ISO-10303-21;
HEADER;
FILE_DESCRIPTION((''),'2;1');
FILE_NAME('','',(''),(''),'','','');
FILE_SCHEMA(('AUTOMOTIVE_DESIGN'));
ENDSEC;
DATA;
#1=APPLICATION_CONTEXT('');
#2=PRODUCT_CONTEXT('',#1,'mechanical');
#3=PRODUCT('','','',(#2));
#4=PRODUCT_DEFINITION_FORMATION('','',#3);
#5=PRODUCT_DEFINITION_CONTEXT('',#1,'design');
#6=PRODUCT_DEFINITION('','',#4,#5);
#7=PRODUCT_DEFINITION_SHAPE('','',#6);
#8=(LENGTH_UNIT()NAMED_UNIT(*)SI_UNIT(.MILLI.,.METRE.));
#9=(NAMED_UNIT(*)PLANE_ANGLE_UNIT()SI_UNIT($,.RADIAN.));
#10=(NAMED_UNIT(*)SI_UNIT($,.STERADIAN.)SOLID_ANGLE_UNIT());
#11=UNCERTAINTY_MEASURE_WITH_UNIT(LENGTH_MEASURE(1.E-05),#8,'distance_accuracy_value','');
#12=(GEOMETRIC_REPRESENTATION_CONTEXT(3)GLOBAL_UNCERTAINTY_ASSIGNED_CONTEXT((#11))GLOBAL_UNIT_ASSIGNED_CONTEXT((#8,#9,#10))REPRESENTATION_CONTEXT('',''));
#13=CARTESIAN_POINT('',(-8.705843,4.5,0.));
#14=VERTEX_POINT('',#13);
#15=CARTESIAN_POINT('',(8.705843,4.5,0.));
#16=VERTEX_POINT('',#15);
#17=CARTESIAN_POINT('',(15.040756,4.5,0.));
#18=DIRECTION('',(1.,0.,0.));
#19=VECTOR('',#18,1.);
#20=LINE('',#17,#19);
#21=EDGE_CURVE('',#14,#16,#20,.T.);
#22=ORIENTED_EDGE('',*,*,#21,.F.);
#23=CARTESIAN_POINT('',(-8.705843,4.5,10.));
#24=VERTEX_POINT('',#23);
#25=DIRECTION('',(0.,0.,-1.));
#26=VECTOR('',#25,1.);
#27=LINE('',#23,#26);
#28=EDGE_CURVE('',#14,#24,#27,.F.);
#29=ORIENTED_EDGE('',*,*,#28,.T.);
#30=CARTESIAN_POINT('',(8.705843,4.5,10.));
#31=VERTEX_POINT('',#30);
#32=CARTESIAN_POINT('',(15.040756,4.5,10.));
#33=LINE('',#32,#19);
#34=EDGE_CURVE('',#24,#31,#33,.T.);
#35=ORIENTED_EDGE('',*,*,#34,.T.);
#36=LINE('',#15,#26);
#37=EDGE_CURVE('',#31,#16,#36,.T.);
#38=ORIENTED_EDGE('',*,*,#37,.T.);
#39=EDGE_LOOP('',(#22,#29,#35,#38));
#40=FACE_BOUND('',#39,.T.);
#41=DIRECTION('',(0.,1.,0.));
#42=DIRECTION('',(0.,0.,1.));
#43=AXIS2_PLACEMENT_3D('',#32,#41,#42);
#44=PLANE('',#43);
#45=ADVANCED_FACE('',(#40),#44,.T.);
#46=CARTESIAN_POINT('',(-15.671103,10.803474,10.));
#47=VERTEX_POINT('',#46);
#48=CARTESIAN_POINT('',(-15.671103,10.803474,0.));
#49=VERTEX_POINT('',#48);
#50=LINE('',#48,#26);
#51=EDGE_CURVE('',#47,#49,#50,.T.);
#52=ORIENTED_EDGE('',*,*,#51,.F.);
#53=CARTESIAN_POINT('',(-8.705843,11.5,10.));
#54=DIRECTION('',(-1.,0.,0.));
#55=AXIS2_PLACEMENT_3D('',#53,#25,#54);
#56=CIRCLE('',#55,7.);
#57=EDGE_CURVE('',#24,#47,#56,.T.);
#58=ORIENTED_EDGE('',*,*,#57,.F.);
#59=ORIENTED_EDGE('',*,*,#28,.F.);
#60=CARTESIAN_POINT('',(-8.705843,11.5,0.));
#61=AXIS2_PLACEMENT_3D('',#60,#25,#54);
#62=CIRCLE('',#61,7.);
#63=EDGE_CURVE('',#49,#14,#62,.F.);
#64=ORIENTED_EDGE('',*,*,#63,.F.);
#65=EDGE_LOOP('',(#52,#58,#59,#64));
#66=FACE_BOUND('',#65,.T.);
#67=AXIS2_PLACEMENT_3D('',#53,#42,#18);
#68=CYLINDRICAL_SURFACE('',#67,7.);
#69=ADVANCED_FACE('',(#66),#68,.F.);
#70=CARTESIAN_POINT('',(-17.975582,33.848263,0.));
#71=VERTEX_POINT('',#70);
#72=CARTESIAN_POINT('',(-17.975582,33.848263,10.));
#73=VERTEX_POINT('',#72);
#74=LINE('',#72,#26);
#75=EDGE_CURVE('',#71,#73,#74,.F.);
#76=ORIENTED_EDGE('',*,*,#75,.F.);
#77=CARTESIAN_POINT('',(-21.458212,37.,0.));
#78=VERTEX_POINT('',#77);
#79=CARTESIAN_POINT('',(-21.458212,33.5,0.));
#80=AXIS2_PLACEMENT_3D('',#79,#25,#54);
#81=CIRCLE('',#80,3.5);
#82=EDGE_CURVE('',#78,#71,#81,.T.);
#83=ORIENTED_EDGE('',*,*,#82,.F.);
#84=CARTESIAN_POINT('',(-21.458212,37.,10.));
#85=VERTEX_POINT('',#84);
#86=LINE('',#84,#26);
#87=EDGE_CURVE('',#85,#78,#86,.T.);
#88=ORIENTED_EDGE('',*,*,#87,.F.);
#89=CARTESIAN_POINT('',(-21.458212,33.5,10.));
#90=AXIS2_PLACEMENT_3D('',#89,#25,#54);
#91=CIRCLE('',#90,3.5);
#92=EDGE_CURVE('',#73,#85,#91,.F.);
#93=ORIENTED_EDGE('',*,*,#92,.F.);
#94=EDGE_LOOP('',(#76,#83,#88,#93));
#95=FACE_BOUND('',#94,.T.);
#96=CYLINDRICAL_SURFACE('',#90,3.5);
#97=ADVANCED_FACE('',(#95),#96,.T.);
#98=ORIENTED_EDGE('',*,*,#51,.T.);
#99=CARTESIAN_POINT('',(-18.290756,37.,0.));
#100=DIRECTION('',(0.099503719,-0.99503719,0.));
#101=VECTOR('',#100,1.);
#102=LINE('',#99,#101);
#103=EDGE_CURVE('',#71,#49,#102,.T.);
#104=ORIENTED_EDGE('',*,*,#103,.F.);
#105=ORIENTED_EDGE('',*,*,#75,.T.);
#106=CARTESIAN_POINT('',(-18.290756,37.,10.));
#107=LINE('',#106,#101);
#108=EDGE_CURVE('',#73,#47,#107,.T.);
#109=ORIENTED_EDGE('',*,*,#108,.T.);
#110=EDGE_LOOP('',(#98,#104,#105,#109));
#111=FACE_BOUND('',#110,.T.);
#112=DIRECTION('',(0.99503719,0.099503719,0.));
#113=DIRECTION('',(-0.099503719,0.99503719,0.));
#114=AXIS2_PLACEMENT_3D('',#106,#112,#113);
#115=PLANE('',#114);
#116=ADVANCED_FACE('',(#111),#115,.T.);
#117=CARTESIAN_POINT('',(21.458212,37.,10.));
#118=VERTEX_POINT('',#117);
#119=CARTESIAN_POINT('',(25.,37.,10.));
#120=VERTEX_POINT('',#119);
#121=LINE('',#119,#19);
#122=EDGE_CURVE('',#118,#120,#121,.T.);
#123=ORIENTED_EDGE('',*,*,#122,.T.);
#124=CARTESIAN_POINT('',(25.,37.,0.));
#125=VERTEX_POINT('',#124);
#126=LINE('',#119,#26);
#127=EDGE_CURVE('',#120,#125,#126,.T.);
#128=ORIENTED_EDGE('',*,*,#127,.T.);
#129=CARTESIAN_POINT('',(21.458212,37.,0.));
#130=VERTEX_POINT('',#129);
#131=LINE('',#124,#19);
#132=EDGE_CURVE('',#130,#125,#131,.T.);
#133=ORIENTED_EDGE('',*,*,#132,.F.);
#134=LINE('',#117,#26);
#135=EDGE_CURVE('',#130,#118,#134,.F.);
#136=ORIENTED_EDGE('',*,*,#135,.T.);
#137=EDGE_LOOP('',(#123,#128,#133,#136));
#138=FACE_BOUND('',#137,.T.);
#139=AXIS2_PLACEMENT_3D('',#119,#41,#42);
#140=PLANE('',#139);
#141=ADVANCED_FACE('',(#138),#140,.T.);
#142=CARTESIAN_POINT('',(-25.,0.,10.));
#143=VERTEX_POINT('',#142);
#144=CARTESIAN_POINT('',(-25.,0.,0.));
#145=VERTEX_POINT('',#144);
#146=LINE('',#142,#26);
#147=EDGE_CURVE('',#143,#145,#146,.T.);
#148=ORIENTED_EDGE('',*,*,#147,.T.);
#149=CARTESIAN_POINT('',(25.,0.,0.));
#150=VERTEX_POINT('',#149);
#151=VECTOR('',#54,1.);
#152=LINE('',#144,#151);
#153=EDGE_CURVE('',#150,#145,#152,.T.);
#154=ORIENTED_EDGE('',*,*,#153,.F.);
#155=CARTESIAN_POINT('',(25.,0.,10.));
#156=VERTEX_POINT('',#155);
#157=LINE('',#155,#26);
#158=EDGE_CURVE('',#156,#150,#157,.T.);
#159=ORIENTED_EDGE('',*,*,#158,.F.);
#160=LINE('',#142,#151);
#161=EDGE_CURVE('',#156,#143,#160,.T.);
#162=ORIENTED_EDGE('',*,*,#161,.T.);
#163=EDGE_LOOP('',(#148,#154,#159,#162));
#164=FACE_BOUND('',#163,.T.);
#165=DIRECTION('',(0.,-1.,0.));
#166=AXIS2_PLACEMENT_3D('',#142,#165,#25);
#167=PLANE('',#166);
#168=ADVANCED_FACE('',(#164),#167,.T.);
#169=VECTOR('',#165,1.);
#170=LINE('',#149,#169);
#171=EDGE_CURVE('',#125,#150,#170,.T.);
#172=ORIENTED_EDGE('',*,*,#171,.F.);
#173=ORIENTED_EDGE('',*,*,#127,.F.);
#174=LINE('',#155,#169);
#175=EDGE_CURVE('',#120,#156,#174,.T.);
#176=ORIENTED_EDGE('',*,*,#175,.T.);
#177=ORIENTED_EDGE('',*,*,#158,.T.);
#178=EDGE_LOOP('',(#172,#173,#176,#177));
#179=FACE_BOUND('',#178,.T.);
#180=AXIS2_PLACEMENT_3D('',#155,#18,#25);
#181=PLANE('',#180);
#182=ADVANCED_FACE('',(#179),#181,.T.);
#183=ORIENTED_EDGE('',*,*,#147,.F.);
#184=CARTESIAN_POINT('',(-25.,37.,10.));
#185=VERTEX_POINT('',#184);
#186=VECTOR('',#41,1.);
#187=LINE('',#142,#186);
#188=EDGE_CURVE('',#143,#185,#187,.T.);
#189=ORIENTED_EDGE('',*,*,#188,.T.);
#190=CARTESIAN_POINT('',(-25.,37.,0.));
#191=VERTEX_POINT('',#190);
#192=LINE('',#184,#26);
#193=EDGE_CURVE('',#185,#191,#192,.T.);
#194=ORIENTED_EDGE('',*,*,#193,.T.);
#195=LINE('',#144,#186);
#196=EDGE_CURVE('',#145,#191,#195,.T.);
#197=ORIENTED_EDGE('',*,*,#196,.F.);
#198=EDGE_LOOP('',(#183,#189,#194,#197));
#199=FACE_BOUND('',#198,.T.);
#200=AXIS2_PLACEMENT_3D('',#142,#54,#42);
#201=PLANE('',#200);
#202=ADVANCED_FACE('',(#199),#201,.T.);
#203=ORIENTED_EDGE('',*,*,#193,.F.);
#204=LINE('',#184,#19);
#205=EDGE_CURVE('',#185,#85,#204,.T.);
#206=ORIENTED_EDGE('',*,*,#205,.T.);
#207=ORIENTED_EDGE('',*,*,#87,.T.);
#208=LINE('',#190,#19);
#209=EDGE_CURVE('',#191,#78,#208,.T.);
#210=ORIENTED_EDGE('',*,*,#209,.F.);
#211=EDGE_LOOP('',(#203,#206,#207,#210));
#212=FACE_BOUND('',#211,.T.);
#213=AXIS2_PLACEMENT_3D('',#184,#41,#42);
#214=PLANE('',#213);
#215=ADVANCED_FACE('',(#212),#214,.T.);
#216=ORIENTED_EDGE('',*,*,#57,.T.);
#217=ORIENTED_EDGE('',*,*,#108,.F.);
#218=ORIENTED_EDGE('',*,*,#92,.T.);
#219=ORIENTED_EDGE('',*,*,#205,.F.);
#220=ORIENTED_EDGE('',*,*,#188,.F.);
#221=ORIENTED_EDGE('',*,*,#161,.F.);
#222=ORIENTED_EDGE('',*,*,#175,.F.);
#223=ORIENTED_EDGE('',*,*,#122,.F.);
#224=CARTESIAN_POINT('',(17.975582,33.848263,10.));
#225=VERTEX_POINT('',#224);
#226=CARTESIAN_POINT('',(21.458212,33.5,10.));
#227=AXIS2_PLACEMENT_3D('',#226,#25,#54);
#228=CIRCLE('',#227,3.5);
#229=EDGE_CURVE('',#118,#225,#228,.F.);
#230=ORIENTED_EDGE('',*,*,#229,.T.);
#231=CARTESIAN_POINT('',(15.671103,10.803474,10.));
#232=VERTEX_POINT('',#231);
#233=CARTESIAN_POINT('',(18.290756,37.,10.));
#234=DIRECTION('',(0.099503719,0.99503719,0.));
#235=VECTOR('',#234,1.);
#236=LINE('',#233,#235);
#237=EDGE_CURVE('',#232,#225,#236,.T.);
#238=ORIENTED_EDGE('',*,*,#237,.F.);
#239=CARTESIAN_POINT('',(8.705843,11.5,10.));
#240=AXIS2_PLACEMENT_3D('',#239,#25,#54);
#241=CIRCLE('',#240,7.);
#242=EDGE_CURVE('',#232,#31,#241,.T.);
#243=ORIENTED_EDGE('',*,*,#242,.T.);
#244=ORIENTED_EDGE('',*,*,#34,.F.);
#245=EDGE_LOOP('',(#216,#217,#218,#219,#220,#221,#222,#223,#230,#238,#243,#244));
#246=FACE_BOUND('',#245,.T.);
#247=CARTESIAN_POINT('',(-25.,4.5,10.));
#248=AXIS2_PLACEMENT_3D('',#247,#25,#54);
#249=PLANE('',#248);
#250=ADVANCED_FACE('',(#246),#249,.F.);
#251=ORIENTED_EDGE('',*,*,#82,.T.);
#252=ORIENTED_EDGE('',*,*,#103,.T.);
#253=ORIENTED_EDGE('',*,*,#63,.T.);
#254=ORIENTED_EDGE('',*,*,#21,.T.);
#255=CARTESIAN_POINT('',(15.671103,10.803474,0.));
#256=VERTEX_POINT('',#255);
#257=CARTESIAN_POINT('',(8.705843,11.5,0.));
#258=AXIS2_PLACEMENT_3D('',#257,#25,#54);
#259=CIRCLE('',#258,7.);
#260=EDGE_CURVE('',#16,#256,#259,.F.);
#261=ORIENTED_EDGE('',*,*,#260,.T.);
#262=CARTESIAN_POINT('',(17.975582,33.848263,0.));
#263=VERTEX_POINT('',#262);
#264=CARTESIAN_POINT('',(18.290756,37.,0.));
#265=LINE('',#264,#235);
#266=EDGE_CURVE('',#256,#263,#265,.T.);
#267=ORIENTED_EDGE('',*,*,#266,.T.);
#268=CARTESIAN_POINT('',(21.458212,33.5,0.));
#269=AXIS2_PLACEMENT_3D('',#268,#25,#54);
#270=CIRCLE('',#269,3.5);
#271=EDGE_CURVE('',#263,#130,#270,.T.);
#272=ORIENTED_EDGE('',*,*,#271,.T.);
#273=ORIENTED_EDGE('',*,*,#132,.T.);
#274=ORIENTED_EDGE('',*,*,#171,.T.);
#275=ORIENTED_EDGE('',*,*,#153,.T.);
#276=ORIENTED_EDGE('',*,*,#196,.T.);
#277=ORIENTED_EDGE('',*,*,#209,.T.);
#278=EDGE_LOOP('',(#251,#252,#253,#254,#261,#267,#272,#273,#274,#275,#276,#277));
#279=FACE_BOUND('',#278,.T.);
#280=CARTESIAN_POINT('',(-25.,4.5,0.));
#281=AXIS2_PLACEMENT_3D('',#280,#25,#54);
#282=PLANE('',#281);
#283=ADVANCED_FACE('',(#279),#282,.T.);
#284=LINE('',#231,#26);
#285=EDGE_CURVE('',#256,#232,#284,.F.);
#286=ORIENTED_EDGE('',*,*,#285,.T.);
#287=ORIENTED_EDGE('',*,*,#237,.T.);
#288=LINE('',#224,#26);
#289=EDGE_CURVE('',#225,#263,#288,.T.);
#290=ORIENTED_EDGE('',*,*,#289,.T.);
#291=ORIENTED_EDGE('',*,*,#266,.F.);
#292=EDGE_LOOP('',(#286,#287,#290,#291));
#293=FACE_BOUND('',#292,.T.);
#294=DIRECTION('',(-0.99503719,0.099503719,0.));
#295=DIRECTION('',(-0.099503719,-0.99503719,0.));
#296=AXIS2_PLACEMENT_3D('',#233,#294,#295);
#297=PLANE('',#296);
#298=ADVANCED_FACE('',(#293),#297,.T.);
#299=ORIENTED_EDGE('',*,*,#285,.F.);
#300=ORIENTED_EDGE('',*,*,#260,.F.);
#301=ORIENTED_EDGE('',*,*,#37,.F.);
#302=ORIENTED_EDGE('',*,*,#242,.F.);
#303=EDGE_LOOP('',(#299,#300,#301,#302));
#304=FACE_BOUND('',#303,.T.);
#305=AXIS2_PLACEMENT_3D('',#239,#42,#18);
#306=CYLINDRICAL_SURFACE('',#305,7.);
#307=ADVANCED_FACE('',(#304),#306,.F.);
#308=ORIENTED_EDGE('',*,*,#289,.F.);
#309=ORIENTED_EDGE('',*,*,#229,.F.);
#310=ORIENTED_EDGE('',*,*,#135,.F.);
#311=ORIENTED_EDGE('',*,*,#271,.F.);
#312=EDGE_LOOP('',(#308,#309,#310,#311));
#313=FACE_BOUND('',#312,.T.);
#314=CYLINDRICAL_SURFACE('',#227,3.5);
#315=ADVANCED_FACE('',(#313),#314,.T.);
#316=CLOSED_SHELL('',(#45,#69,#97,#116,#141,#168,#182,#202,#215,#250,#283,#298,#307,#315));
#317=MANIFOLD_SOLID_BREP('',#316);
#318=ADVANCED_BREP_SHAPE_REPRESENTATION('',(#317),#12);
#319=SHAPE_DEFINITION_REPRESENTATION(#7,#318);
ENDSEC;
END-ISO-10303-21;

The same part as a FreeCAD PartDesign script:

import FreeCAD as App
import Part
import Sketcher


def edges_at(feature, points):
    """Names of the edges that pass closest to the given points."""
    edges = feature.Shape.Edges
    near = lambda p: min(range(len(edges)), key=lambda i: edges[i].distToShape(Part.Vertex(*p))[0])
    return sorted({f"Edge{near(p) + 1}" for p in points})

doc = App.newDocument("Part")
body = doc.addObject("PartDesign::Body", "Body")

# Sketch on XY plane
sketch1 = body.newObject("Sketcher::SketchObject", "Sketch")
sketch1.AttachmentSupport = (doc.getObject("XY_Plane"), [""])
sketch1.MapMode = "FlatFace"
sketch1.addGeometry(Part.LineSegment(App.Vector(25, 0, 0), App.Vector(-25, 0, 0)), False)
sketch1.addGeometry(Part.LineSegment(App.Vector(-25, 0, 0), App.Vector(-25, 37, 0)), False)
sketch1.addGeometry(Part.LineSegment(App.Vector(-25, 37, 0), App.Vector(-18.290756, 37, 0)), False)
sketch1.addGeometry(Part.LineSegment(App.Vector(-18.290756, 37, 0), App.Vector(-15.040756, 4.5, 0)), False)
sketch1.addGeometry(Part.LineSegment(App.Vector(-15.040756, 4.5, 0), App.Vector(15.040756, 4.5, 0)), False)
sketch1.addGeometry(Part.LineSegment(App.Vector(15.040756, 4.5, 0), App.Vector(18.290756, 37, 0)), False)
sketch1.addGeometry(Part.LineSegment(App.Vector(18.290756, 37, 0), App.Vector(25, 37, 0)), False)
sketch1.addGeometry(Part.LineSegment(App.Vector(25, 37, 0), App.Vector(25, 0, 0)), False)
sketch1.addConstraint(Sketcher.Constraint("Coincident", 0, 2, 1, 1))
sketch1.addConstraint(Sketcher.Constraint("Coincident", 1, 2, 2, 1))
sketch1.addConstraint(Sketcher.Constraint("Coincident", 2, 2, 3, 1))
sketch1.addConstraint(Sketcher.Constraint("Coincident", 3, 2, 4, 1))
sketch1.addConstraint(Sketcher.Constraint("Coincident", 4, 2, 5, 1))
sketch1.addConstraint(Sketcher.Constraint("Coincident", 5, 2, 6, 1))
sketch1.addConstraint(Sketcher.Constraint("Coincident", 6, 2, 7, 1))
sketch1.addConstraint(Sketcher.Constraint("Coincident", 7, 2, 0, 1))
sketch1.addConstraint(Sketcher.Constraint("Horizontal", 0))
sketch1.addConstraint(Sketcher.Constraint("Vertical", 1))
sketch1.addConstraint(Sketcher.Constraint("Horizontal", 2))
sketch1.addConstraint(Sketcher.Constraint("Horizontal", 4))
sketch1.addConstraint(Sketcher.Constraint("Horizontal", 6))
sketch1.addConstraint(Sketcher.Constraint("Vertical", 7))
sketch1.addConstraint(Sketcher.Constraint("Symmetric", 0, 2, 7, 2, -1, 1))
sketch1.addConstraint(Sketcher.Constraint("Symmetric", 2, 2, 5, 2, -2))
sketch1.addConstraint(Sketcher.Constraint("Equal", 3, 5))
sketch1.addConstraint(Sketcher.Constraint("DistanceX", 0, 2, 0, 1, 50.0))
sketch1.addConstraint(Sketcher.Constraint("DistanceY", 1, 1, 1, 2, 37.0))
sketch1.addConstraint(Sketcher.Constraint("DistanceY", -1, 1, 3, 2, 4.5))
sketch1.addConstraint(Sketcher.Constraint("DistanceX", 2, 2, 3, 2, 3.25))
sketch1.addConstraint(Sketcher.Constraint("DistanceX", 4, 1, 4, 2, 30.081511))
pad1 = body.newObject("PartDesign::Pad", "Pad")
pad1.Profile = sketch1
pad1.Length = 10
doc.recompute()

fillet = body.newObject("PartDesign::Fillet", "Fillet")
fillet.Base = (pad1, edges_at(pad1, [(-18.291, 37, 5), (18.291, 37, 5)]))
fillet.Radius = 3.5
doc.recompute()

fillet2 = body.newObject("PartDesign::Fillet", "Fillet001")
fillet2.Base = (fillet, edges_at(fillet, [(-15.041, 4.5, 5), (15.041, 4.5, 5)]))
fillet2.Radius = 7

doc.recompute()
